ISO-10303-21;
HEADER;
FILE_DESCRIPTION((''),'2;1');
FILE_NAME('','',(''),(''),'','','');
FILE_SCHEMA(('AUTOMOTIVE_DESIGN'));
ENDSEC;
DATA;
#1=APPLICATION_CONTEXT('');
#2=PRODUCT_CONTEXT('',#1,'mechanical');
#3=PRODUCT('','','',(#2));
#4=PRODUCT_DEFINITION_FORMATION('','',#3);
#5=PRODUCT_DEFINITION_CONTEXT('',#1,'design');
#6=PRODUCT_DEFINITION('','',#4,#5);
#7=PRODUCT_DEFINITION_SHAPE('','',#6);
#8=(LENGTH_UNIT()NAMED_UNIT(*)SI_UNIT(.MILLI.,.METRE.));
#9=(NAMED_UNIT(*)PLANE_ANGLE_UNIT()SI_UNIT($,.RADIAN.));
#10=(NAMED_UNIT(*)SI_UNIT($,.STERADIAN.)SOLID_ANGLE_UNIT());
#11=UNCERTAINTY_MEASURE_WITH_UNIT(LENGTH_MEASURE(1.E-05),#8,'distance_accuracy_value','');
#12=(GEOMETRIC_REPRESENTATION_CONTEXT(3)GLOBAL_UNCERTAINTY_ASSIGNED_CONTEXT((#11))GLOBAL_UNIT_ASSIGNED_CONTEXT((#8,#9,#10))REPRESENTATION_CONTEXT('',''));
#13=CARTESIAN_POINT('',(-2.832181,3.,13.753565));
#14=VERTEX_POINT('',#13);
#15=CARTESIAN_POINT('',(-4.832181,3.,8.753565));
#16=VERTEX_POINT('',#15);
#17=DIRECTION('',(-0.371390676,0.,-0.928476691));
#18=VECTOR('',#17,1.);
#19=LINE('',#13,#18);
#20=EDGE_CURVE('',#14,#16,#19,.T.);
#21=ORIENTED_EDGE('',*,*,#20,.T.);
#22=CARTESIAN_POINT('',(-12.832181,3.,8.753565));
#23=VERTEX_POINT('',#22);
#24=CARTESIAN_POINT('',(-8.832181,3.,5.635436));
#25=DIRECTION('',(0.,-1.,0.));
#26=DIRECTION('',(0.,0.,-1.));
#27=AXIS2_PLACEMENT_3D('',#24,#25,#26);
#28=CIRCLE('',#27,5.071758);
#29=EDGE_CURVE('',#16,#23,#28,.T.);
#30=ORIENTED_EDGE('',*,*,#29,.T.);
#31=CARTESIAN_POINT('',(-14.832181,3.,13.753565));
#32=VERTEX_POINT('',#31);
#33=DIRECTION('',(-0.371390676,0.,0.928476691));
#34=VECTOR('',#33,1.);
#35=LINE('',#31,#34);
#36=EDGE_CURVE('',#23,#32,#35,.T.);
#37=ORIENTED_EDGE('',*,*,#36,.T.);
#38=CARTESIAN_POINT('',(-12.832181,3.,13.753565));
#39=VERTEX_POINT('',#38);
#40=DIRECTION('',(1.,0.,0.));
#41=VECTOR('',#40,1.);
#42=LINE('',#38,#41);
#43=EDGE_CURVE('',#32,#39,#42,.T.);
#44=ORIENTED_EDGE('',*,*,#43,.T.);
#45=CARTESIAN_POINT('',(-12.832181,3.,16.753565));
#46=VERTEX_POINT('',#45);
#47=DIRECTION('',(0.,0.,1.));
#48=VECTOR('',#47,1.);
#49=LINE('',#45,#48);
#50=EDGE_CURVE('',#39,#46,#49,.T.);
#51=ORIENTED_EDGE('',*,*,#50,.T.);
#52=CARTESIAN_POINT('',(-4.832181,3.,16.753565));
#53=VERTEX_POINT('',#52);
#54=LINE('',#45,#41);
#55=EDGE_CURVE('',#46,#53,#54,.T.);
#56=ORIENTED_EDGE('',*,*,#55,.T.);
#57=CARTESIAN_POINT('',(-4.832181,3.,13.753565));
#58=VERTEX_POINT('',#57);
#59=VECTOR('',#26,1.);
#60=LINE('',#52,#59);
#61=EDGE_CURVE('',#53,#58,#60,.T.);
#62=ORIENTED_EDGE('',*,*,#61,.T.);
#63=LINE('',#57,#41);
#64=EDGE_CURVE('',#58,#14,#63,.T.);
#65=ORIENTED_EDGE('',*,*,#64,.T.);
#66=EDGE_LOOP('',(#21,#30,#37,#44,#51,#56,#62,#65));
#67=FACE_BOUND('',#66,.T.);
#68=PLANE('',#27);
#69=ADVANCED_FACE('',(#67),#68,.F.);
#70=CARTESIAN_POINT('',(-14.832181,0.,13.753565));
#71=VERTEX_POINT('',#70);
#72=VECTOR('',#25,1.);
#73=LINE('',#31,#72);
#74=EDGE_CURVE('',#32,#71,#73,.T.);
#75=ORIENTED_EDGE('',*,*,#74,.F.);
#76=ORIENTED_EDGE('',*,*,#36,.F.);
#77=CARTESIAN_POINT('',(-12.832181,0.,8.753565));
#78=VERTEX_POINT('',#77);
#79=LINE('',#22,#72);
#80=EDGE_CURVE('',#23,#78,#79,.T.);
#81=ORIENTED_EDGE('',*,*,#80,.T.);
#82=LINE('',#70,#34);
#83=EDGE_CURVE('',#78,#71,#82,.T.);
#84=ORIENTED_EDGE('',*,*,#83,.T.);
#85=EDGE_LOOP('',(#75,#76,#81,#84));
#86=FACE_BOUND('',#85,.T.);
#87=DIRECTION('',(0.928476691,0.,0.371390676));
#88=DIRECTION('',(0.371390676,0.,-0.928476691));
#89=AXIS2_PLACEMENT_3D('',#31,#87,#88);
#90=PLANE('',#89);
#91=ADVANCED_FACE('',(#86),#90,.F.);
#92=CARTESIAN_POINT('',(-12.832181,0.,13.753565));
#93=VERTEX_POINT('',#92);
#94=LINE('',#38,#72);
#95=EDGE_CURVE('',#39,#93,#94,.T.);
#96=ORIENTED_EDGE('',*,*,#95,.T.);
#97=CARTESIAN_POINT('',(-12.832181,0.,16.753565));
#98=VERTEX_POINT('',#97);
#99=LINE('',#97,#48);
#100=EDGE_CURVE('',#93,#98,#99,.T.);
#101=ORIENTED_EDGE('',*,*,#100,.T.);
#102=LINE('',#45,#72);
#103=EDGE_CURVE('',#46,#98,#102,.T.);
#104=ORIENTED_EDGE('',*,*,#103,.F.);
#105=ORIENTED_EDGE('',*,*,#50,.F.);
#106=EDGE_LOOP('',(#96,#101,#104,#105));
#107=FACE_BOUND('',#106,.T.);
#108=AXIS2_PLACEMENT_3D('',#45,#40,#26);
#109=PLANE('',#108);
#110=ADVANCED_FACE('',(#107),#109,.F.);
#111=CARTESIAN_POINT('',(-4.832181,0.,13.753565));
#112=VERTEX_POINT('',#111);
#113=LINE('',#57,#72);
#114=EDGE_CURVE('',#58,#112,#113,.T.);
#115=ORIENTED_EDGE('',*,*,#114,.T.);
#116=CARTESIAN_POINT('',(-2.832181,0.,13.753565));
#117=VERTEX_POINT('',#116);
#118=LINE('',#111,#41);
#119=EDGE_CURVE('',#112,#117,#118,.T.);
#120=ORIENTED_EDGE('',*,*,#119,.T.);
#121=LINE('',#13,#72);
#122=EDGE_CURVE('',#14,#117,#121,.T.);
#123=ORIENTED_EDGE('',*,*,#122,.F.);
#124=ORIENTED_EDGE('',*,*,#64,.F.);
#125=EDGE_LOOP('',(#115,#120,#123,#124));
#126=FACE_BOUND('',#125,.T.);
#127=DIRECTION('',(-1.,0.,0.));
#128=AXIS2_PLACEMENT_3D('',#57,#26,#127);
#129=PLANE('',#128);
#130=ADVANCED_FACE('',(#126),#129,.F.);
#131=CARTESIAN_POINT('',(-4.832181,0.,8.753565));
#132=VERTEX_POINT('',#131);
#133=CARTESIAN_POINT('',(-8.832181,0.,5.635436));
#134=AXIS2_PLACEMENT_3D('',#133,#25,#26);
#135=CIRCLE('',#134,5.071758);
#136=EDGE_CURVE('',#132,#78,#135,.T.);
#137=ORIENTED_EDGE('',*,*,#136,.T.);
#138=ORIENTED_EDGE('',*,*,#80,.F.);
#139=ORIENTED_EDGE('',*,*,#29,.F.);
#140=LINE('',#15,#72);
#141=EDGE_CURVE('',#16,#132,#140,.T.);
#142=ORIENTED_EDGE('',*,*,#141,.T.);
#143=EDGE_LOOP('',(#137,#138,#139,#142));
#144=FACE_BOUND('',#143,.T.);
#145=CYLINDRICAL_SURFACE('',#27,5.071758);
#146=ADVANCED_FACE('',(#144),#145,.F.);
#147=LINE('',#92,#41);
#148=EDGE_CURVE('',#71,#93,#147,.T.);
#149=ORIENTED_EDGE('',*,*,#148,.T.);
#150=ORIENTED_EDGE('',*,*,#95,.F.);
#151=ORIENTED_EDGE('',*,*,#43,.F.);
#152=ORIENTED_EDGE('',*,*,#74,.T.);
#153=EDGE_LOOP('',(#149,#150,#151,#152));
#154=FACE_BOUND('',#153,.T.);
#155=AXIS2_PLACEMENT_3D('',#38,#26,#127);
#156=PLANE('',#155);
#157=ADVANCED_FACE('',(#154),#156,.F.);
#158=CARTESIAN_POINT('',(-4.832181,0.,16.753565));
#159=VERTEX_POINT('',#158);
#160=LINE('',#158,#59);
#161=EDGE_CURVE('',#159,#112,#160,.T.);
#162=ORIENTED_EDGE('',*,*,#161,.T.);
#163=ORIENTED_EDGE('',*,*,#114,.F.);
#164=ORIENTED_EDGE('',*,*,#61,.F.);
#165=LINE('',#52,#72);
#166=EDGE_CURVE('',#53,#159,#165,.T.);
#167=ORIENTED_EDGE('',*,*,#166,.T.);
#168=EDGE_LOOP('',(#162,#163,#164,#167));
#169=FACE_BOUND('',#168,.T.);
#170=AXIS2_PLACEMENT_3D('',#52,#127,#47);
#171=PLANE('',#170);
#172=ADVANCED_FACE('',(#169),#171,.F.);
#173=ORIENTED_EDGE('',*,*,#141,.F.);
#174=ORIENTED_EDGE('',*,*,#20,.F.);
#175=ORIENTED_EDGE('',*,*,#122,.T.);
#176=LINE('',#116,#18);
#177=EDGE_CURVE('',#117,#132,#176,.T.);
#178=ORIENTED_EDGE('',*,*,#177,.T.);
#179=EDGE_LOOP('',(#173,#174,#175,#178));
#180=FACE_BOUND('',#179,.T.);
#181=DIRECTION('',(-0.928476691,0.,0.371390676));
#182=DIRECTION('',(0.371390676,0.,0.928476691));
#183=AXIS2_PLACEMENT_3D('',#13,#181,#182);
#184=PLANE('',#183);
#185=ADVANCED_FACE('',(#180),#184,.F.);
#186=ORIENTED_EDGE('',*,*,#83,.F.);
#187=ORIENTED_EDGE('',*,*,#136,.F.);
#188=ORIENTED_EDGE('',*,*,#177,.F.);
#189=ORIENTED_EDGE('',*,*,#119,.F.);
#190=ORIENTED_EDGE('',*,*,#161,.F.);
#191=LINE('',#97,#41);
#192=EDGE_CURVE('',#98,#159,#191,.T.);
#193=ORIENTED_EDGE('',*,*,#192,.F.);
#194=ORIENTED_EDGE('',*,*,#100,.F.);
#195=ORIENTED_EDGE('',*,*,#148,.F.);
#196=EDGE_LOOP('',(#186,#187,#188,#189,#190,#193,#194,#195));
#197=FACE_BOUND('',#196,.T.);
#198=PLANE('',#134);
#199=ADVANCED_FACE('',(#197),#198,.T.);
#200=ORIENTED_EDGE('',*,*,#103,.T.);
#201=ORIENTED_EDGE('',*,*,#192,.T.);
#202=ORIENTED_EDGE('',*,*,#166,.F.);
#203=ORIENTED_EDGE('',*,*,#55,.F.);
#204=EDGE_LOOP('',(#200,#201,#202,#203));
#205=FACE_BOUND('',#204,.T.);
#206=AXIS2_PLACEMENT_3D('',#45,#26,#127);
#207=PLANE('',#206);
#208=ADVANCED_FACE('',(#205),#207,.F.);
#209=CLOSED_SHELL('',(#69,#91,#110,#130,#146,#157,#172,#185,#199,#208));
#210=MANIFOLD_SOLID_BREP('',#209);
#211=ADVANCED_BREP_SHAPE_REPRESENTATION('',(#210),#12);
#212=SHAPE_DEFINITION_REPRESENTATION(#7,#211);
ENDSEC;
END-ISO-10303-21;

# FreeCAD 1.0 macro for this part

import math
import FreeCAD as App
import Part
import Sketcher
Q = App.Units.Quantity

doc = App.newDocument("Part")
body = doc.addObject("PartDesign::Body", "Body")

# Sketch on XZ plane
sketch1 = body.newObject("Sketcher::SketchObject", "Sketch")
sketch1.AttachmentSupport = (doc.getObject("XZ_Plane"), [""])
sketch1.MapMode = "FlatFace"
sketch1.addGeometry([
    Part.LineSegment(App.Vector(-12.8, 16.8, 0), App.Vector(-4.8, 16.8, 0)),  # 0
    Part.LineSegment(App.Vector(-4.8, 16.8, 0), App.Vector(-4.8, 13.8, 0)),  # 1
    Part.LineSegment(App.Vector(-4.8, 13.8, 0), App.Vector(-2.8, 13.8, 0)),  # 2
    Part.LineSegment(App.Vector(-2.8, 13.8, 0), App.Vector(-4.8, 8.8, 0)),  # 3
    Part.ArcOfCircle(Part.Circle(App.Vector(-8.8, 5.6, 0), App.Vector(0, 0, 1), 5.1), math.radians(38), math.radians(142)),  # 4
    Part.LineSegment(App.Vector(-12.8, 8.8, 0), App.Vector(-14.8, 13.8, 0)),  # 5
    Part.LineSegment(App.Vector(-14.8, 13.8, 0), App.Vector(-12.8, 13.8, 0)),  # 6
    Part.LineSegment(App.Vector(-12.8, 13.8, 0), App.Vector(-12.8, 16.8, 0)),  # 7
], False)
sketch1.addConstraint([
    Sketcher.Constraint("Coincident", 0, 2, 1, 1),
    Sketcher.Constraint("Coincident", 1, 2, 2, 1),
    Sketcher.Constraint("Coincident", 2, 2, 3, 1),
    Sketcher.Constraint("Coincident", 3, 2, 4, 1),
    Sketcher.Constraint("Coincident", 4, 2, 5, 1),
    Sketcher.Constraint("Coincident", 5, 2, 6, 1),
    Sketcher.Constraint("Coincident", 6, 2, 7, 1),
    Sketcher.Constraint("Coincident", 7, 2, 0, 1),
    Sketcher.Constraint("Horizontal", 0),
    Sketcher.Constraint("Vertical", 1),
    Sketcher.Constraint("Horizontal", 2),
    Sketcher.Constraint("Horizontal", 6),
    Sketcher.Constraint("Vertical", 7),
    Sketcher.Constraint("Horizontal", 3, 2, 4, 2),
    Sketcher.Constraint("Horizontal", 2, 2, 5, 2),
    Sketcher.Constraint("Vertical", 1, 2, 3, 2),
    Sketcher.Constraint("Vertical", 4, 2, 6, 2),
    Sketcher.Constraint("Equal", 2, 6),
    Sketcher.Constraint("DistanceX", 0, 1, 0, 2, Q("8 mm")),
    Sketcher.Constraint("DistanceX", 2, 1, 2, 2, Q("2 mm")),
    Sketcher.Constraint("DistanceY", 1, 2, 1, 1, Q("3 mm")),
    Sketcher.Constraint("DistanceY", 3, 2, 1, 2, Q("5 mm")),
    Sketcher.Constraint("Radius", 4, Q("5.071758 mm")),
    Sketcher.Constraint("DistanceX", 4, 3, -1, 1, Q("8.832181 mm")),
    Sketcher.Constraint("DistanceY", -1, 1, 4, 3, Q("5.635436 mm")),
])
pad1 = body.newObject("PartDesign::Pad", "Pad")
pad1.Profile = sketch1
pad1.Length = 3
pad1.Reversed = True

doc.recompute()
